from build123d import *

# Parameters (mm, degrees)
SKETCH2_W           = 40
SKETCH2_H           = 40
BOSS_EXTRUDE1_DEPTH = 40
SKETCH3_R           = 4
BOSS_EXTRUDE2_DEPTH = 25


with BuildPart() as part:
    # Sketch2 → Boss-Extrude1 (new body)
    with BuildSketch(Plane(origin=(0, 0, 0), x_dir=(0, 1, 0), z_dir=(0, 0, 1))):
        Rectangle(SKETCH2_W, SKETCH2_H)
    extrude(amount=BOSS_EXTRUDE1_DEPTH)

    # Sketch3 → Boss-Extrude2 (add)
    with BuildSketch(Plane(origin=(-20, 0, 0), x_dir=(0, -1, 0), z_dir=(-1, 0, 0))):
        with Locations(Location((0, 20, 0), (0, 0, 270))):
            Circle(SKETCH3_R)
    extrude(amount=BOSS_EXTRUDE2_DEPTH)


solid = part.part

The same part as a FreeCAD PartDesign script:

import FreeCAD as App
import Part
import Sketcher

V = App.Vector
Q = App.Units.Quantity


def add_polygon(sketch, points):
    """Adds a closed chain of lines whose ends are joined by coincident constraints."""
    first, n = sketch.GeometryCount, len(points)
    for a, b in zip(points, points[1:] + points[:1]):
        sketch.addGeometry(Part.LineSegment(App.Vector(*a, 0), App.Vector(*b, 0)), False)
    for i in range(n):
        sketch.addConstraint(Sketcher.Constraint("Coincident", first + i, 2, first + (i + 1) % n, 1))

doc = App.newDocument("Part")
params = doc.addObject("Spreadsheet::Sheet", "Params")
for row, (alias, value) in enumerate([
    ("sketch1_width", "40 mm"),
    ("pad1_length", "40 mm"),
    ("sketch2_diameter", "8 mm"),
    ("pad2_length", "25 mm"),
], start=1):
    params.set(f"A{row}", alias)
    params.set(f"B{row}", "=" + value)
    params.setAlias(f"B{row}", alias)

body = doc.addObject("PartDesign::Body", "Body")

sketch1 = doc.addObject("Sketcher::SketchObject", "Sketch")
body.addObject(sketch1)
sketch1.AttachmentSupport = (doc.XY_Plane, [""])
sketch1.MapMode = "FlatFace"
add_polygon(sketch1, [(-20, -20), (20, -20), (20, 20), (-20, 20)])
sketch1.addConstraint([
    Sketcher.Constraint("Horizontal", 0),
    Sketcher.Constraint("Vertical", 1),
    Sketcher.Constraint("Horizontal", 2),
    Sketcher.Constraint("Vertical", 3),
    Sketcher.Constraint("Symmetric", 0, 2, 2, 2, -1, 1),
    Sketcher.Constraint("Equal", 2, 1),
    Sketcher.Constraint("DistanceX", 0, 1, 0, 2, Q("40 mm")),
])
sketch1.setExpression("Constraints[10]", "Params.sketch1_width")
pad1 = doc.addObject("PartDesign::Pad", "Pad")
body.addObject(pad1)
pad1.Profile = sketch1
pad1.setExpression("Length", "Params.pad1_length")

sketch2 = doc.addObject("Sketcher::SketchObject", "Sketch001")
body.addObject(sketch2)
sketch2.AttachmentSupport = (doc.YZ_Plane, [""])
sketch2.MapMode = "FlatFace"
sketch2.AttachmentOffset = App.Placement(V(0, 0, -20), App.Rotation())
sketch2.addGeometry(Part.Circle(V(0, 20, 0), V(0, 0, 1), 4), False)
sketch2.addConstraint([
    Sketcher.Constraint("PointOnObject", 0, 3, -2),
    Sketcher.Constraint("Diameter", 0, Q("8 mm")),
    Sketcher.Constraint("DistanceY", -1, 1, 0, 3, Q("20 mm")),
])
sketch2.setExpression("Constraints[1]", "Params.sketch2_diameter")
pad2 = doc.addObject("PartDesign::Pad", "Pad001")
body.addObject(pad2)
pad2.Profile = sketch2
pad2.setExpression("Length", "Params.pad2_length")
pad2.Reversed = True

doc.recompute()
